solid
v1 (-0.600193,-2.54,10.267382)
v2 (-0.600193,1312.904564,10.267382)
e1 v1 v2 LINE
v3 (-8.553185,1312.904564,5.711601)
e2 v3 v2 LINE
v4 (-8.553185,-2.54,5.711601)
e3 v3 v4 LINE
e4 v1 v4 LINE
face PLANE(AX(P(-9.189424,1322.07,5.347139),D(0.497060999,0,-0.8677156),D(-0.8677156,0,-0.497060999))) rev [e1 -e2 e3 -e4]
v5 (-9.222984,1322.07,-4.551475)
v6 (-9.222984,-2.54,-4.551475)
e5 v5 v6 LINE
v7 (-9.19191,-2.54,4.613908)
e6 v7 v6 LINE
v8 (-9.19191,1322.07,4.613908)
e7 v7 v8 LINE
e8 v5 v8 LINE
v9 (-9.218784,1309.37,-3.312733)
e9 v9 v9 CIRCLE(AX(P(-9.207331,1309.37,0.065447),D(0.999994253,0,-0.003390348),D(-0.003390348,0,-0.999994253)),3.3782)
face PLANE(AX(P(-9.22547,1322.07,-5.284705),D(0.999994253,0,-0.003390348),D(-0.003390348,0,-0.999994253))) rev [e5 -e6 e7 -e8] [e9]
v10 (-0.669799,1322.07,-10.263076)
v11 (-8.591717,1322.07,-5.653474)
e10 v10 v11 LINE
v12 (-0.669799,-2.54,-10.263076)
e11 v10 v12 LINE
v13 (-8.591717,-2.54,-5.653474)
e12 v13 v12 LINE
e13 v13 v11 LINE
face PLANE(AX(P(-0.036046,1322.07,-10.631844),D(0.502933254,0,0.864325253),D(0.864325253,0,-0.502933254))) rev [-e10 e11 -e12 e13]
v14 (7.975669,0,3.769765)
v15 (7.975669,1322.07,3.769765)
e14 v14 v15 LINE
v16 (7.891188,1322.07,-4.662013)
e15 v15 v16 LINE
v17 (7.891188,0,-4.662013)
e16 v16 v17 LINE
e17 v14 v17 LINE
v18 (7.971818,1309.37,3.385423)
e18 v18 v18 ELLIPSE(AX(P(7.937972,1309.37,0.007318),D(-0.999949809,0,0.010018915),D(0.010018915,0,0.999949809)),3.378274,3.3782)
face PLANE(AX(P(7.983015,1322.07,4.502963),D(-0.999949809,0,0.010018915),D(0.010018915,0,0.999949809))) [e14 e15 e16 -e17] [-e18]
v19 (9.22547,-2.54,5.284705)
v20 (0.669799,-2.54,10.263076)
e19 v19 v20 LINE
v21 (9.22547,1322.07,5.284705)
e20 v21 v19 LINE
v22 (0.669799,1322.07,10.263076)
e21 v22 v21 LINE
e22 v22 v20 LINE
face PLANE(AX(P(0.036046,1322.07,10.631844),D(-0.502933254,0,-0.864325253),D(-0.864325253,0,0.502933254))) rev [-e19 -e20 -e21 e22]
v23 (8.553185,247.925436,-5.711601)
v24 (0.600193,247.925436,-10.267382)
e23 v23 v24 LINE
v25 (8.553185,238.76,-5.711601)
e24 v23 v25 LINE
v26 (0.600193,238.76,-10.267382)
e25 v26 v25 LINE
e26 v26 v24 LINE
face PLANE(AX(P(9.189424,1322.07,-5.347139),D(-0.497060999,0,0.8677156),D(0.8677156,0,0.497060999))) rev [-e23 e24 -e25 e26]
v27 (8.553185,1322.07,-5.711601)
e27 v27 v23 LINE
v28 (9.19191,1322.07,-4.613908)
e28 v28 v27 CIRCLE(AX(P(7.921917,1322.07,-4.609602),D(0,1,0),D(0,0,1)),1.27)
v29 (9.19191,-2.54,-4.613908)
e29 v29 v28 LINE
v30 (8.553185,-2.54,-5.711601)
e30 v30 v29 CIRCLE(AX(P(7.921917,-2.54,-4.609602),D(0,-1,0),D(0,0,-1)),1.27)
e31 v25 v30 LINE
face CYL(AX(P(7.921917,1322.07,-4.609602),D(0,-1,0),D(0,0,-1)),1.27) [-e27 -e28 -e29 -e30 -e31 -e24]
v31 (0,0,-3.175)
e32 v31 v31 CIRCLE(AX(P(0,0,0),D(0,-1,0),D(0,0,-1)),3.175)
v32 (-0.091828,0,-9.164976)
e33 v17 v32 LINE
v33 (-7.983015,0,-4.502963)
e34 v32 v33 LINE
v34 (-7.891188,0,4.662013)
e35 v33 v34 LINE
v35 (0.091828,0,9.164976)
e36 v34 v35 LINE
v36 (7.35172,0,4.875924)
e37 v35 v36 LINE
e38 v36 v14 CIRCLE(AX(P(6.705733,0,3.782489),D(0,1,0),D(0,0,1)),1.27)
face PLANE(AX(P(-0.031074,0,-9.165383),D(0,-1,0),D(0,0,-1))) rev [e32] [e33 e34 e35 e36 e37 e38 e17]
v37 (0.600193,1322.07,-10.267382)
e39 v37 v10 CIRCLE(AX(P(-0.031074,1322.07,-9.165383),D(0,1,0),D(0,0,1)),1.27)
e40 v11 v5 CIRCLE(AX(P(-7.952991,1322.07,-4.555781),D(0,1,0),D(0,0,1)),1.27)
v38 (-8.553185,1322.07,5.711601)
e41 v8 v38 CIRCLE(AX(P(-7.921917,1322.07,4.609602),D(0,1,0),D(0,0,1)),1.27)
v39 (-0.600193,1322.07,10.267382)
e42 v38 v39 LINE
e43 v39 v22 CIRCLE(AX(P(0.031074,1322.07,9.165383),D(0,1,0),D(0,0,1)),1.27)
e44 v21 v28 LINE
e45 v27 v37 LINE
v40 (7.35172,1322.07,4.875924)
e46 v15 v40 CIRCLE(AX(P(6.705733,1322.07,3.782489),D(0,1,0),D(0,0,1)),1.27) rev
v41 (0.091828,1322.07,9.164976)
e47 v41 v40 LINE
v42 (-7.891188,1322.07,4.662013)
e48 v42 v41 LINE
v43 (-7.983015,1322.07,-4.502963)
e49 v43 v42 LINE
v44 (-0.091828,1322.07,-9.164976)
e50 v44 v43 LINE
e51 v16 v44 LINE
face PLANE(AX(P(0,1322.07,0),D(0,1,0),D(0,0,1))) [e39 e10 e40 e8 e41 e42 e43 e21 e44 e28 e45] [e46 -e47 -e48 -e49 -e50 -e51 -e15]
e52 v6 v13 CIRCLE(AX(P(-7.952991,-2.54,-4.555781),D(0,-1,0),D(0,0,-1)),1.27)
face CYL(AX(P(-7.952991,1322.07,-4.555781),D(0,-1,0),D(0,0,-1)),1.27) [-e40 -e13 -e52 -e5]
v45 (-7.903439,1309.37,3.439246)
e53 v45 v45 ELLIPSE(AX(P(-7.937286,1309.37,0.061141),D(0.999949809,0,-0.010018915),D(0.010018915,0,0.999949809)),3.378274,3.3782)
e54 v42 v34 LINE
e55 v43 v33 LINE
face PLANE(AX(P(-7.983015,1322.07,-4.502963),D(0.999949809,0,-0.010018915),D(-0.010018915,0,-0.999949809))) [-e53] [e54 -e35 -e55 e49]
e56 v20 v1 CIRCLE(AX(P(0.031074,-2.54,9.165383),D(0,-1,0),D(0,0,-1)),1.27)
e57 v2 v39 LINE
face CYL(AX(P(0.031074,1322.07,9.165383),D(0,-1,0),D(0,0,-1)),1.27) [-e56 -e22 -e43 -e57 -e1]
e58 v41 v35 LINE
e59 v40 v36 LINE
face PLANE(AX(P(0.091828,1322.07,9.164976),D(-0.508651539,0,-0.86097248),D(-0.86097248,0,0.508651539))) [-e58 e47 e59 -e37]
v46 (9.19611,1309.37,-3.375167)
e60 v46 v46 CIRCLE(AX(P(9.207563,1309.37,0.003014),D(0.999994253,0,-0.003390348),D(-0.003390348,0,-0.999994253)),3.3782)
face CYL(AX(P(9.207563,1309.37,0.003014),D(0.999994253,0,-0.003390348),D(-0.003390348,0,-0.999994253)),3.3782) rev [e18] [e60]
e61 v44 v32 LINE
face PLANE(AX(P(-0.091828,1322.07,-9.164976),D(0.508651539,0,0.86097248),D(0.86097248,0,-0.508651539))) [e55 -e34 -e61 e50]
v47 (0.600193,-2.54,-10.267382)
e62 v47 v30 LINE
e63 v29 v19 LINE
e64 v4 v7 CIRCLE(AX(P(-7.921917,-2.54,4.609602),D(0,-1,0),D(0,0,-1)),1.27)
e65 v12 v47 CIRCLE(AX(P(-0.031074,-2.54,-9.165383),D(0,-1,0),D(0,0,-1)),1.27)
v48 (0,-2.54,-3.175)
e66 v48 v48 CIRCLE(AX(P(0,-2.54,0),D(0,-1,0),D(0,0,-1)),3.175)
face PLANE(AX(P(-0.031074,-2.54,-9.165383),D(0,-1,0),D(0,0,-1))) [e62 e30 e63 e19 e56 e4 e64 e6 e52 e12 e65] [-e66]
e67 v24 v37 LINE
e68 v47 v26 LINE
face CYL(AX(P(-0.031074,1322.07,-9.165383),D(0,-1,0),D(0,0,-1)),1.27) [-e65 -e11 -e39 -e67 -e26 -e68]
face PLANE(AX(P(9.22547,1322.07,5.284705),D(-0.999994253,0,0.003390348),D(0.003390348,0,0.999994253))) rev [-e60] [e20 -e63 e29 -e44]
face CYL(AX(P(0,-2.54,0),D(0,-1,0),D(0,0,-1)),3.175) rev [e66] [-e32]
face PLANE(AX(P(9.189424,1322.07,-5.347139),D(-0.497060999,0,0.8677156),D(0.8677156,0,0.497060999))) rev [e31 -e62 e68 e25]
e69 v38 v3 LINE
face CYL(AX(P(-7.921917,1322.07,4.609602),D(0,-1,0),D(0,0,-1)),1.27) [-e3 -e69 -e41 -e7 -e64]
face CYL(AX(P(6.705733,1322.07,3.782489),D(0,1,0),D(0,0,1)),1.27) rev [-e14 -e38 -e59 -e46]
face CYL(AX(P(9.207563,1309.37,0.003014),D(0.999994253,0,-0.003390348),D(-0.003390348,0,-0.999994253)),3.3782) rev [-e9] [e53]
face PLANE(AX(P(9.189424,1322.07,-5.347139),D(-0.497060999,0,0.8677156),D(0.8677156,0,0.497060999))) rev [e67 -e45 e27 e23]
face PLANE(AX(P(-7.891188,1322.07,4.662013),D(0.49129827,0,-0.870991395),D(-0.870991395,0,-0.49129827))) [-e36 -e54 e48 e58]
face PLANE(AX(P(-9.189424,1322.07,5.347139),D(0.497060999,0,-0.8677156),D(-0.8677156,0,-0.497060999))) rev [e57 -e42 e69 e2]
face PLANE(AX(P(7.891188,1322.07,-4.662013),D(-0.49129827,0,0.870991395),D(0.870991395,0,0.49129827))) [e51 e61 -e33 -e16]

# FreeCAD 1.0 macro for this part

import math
import FreeCAD as App
import Part
import Sketcher
from FreeCAD import Vector
Q = App.Units.Quantity


def edges_at(feature, points):
    """Names of the edges that pass closest to the given points."""
    edges = feature.Shape.Edges
    near = lambda p: min(range(len(edges)), key=lambda i: edges[i].distToShape(Part.Vertex(*p))[0])
    return sorted({f"Edge{near(p) + 1}" for p in points})


def add_polygon(sketch, points):
    """Adds a closed chain of lines whose ends are joined by coincident constraints."""
    first, n = sketch.GeometryCount, len(points)
    for a, b in zip(points, points[1:] + points[:1]):
        sketch.addGeometry(Part.LineSegment(App.Vector(*a, 0), App.Vector(*b, 0)), False)
    for i in range(n):
        sketch.addConstraint(Sketcher.Constraint("Coincident", first + i, 2, first + (i + 1) % n, 1))

doc = App.newDocument("Part")
body = doc.addObject("PartDesign::Body", "Body")

sketch1 = body.newObject("Sketcher::SketchObject", "Sketch")
sketch1.AttachmentSupport = (doc.getObject("XZ_Plane"), [""])
sketch1.MapMode = "FlatFace"
add_polygon(sketch1, [(-9.22547, -5.284705), (-9.189424, 5.347139), (0.036046, 10.631844), (9.22547, 5.284705), (9.189424, -5.347139), (-0.036046, -10.631844)])
add_polygon(sketch1, [(-7.891188, 4.662013), (-7.983015, -4.502963), (-0.091828, -9.164976), (7.891188, -4.662013), (7.983015, 4.502963), (0.091828, 9.164976)])
sketch1.addConstraint([
    Sketcher.Constraint("Symmetric", 0, 2, 3, 2, -1, 1),
    Sketcher.Constraint("Symmetric", 1, 2, 4, 2, -1, 1),
    Sketcher.Constraint("Symmetric", 2, 2, 5, 2, -1, 1),
    Sketcher.Constraint("Symmetric", 6, 2, 9, 2, -1, 1),
    Sketcher.Constraint("Symmetric", 7, 2, 10, 2, -1, 1),
    Sketcher.Constraint("Symmetric", 8, 2, 11, 2, -1, 1),
    Sketcher.Constraint("Equal", 0, 1),
    Sketcher.Constraint("Equal", 1, 2),
    Sketcher.Constraint("Equal", 6, 7),
    Sketcher.Constraint("Equal", 7, 8),
    Sketcher.Constraint("DistanceY", 6, 2, 0, 2, 9.850101),
    Sketcher.Constraint("DistanceY", -1, 1, 0, 2, 5.347139),
    Sketcher.Constraint("DistanceX", -1, 1, 2, 2, 9.22547),
    Sketcher.Constraint("DistanceX", 0, 2, 1, 2, 9.22547),
    Sketcher.Constraint("DistanceY", 2, 2, 1, 2, 5.347139),
    Sketcher.Constraint("DistanceX", 0, 2, 6, 2, 1.206409),
    Sketcher.Constraint("DistanceX", 7, 2, 4, 2, 0.055782),
    Sketcher.Constraint("DistanceY", 4, 2, 7, 2, 1.466869),
])
pad1 = body.newObject("PartDesign::Pad", "Pad")
pad1.Profile = sketch1
pad1.Length = Q("52.05 in")
pad1.Reversed = True
doc.recompute()

fillet = body.newObject("PartDesign::Fillet", "Fillet")
fillet.Base = (pad1, edges_at(pad1, [
    (-0.036, 661.035, -10.632),
    (9.189, 661.035, -5.347),
    (0.036, 661.035, 10.632),
    (-9.189, 661.035, 5.347),
    (-9.225, 661.035, -5.285),
    (7.983, 661.035, 4.503),
]))
fillet.Radius = Q("0.05 in")

sketch2 = body.newObject("Sketcher::SketchObject", "Sketch001")
sketch2.AttachmentSupport = (doc.getObject("XZ_Plane"), [""])
sketch2.MapMode = "FlatFace"
sketch2.addGeometry([
    Part.LineSegment(Vector(0.600193, -10.267382, 0), Vector(8.553185, -5.711601, 0)),
    Part.ArcOfCircle(Part.Circle(Vector(7.921917, -4.609602, 0), Vector(0, 0, 1), 1.27), math.radians(-60.194253), math.radians(-0.194253)),
    Part.LineSegment(Vector(9.19191, -4.613908, 0), Vector(9.22547, 5.284705, 0)),
    Part.LineSegment(Vector(9.22547, 5.284705, 0), Vector(0.669799, 10.263076, 0)),
    Part.ArcOfCircle(Part.Circle(Vector(0.031074, 9.165383, 0), Vector(0, 0, 1), 1.27), math.radians(59.805747), math.radians(119.805747)),
    Part.LineSegment(Vector(-0.600193, 10.267382, 0), Vector(-8.553185, 5.711601, 0)),
    Part.ArcOfCircle(Part.Circle(Vector(-7.921917, 4.609602, 0), Vector(0, 0, 1), 1.27), math.radians(119.805747), math.radians(179.805747)),
    Part.LineSegment(Vector(-9.19191, 4.613908, 0), Vector(-9.222984, -4.551475, 0)),
    Part.ArcOfCircle(Part.Circle(Vector(-7.952991, -4.555781, 0), Vector(0, 0, 1), 1.27), math.radians(179.805747), math.radians(239.805747)),
    Part.LineSegment(Vector(-8.591717, -5.653474, 0), Vector(-0.669799, -10.263076, 0)),
    Part.ArcOfCircle(Part.Circle(Vector(-0.031074, -9.165383, 0), Vector(0, 0, 1), 1.27), math.radians(-120.194253), math.radians(-60.194253)),
], False)
sketch2.addConstraint([
    Sketcher.Constraint("Tangent", 0, 2, 1, 1),
    Sketcher.Constraint("Tangent", 1, 2, 2, 1),
    Sketcher.Constraint("Coincident", 2, 2, 3, 1),
    Sketcher.Constraint("Tangent", 3, 2, 4, 1),
    Sketcher.Constraint("Tangent", 4, 2, 5, 1),
    Sketcher.Constraint("Tangent", 5, 2, 6, 1),
    Sketcher.Constraint("Tangent", 6, 2, 7, 1),
    Sketcher.Constraint("Tangent", 7, 2, 8, 1),
    Sketcher.Constraint("Tangent", 8, 2, 9, 1),
    Sketcher.Constraint("Tangent", 9, 2, 10, 1),
    Sketcher.Constraint("Tangent", 10, 2, 0, 1),
    Sketcher.Constraint("Equal", 1, 4),
    Sketcher.Constraint("Equal", 4, 6),
    Sketcher.Constraint("Equal", 6, 8),
    Sketcher.Constraint("Equal", 8, 10),
    Sketcher.Constraint("Symmetric", 1, 3, 6, 3, -1, 1),
    Sketcher.Constraint("Symmetric", 4, 3, 10, 3, -1, 1),
    Sketcher.Constraint("Parallel", 2, 7),
    Sketcher.Constraint("Parallel", 3, 9),
    Sketcher.Constraint("Equal", 2, 3),
    Sketcher.Constraint("Equal", 5, 7),
    Sketcher.Constraint("Radius", 1, Q("0.05 in")),
    Sketcher.Constraint("DistanceY", 0, 2, -1, 1, 5.711601),
    Sketcher.Constraint("DistanceX", -1, 1, 3, 2, 0.669799),
    Sketcher.Constraint("DistanceY", 0, 2, 1, 3, 1.101999),
    Sketcher.Constraint("DistanceX", 8, 3, 1, 2, 17.144901),
])
pad2 = body.newObject("PartDesign::Pad", "Pad001")
pad2.Profile = sketch2
pad2.Length = Q("0.1 in")

sketch3 = body.newObject("Sketcher::SketchObject", "Sketch002")
sketch3.AttachmentSupport = (doc.getObject("XZ_Plane"), [""])
sketch3.MapMode = "FlatFace"
sketch3.AttachmentOffset = App.Placement(Vector(0, 0, 0.1 * 25.4), App.Rotation())
sketch3.addGeometry(Part.Circle(Vector(0, 0, 0), Vector(0, 0, 1), 3.175), False)
sketch3.addConstraint([
    Sketcher.Constraint("Coincident", 0, 3, -1, 1),
    Sketcher.Constraint("Diameter", 0, Q("0.25 in")),
])
doc.recompute()
hole = body.newObject("PartDesign::Hole", "Hole")
hole.Profile = sketch3
hole.ThreadType = "None"
hole.Diameter = Q("0.25 in")
hole.DepthType = "ThroughAll"

sketch4 = body.newObject("Sketcher::SketchObject", "Sketch003")
sketch4.Placement = App.Placement(Vector(9.207447, 0, -0.031217), App.Rotation(Vector(-0.003390348, 0, -0.999994253), Vector(0, 1, 0), Vector(0.999994253, 0, -0.003390348), "ZXY"))
sketch4.addGeometry(Part.Circle(Vector(-0.034231, 1309.370001, 0), Vector(0, 0, 1), 3.3782), False)
sketch4.addConstraint([
    Sketcher.Constraint("Diameter", 0, Q("0.266 in")),
    Sketcher.Constraint("DistanceY", -1, 1, 0, 3, Q("51.5500001 in")),
    Sketcher.Constraint("DistanceX", 0, 3, -1, 1, 0.034231),
])
doc.recompute()
hole2 = body.newObject("PartDesign::Hole", "Hole001")
hole2.Profile = sketch4
hole2.ThreadType = "None"
hole2.Diameter = Q("0.266 in")
hole2.DepthType = "ThroughAll"

doc.recompute()
